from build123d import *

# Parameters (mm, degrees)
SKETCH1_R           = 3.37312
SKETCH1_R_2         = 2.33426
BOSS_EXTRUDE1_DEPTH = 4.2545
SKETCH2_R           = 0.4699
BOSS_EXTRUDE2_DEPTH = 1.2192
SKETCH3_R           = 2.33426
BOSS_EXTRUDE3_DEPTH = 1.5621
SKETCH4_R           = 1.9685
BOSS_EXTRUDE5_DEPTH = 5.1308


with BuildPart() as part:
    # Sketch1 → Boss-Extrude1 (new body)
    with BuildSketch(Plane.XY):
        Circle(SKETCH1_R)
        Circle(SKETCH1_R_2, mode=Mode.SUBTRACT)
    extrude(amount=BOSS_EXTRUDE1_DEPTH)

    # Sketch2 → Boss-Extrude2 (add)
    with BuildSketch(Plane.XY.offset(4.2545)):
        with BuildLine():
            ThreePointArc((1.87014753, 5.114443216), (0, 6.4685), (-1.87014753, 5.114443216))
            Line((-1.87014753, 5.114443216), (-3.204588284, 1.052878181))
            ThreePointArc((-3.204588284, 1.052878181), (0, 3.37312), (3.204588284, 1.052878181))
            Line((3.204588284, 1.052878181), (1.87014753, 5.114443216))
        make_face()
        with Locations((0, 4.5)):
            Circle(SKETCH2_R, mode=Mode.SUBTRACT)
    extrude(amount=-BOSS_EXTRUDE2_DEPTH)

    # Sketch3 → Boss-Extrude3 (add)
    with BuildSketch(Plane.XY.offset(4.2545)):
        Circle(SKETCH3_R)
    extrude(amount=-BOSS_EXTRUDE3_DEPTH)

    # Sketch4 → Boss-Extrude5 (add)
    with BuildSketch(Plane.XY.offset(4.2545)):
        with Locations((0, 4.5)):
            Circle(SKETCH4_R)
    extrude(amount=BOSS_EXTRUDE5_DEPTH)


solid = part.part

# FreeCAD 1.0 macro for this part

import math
import FreeCAD as App
import Part
import Sketcher

V = App.Vector
Q = App.Units.Quantity

doc = App.newDocument("Part")
body = doc.addObject("PartDesign::Body", "Body")

sketch1 = body.newObject("Sketcher::SketchObject", "Sketch")
sketch1.AttachmentSupport = (doc.getObject("XY_Plane"), [""])
sketch1.MapMode = "FlatFace"
sketch1.addGeometry(Part.Circle(V(0, 0, 0), V(0, 0, 1), 3.4), False)
sketch1.addGeometry(Part.Circle(V(0, 0, 0), V(0, 0, 1), 2.3), False)
sketch1.addConstraint(Sketcher.Constraint("Coincident", 0, 3, -1, 1))
sketch1.addConstraint(Sketcher.Constraint("Coincident", 1, 3, -1, 1))
sketch1.addConstraint(Sketcher.Constraint("Diameter", 0, Q("0.2656 in")))
sketch1.addConstraint(Sketcher.Constraint("Diameter", 1, Q("0.1838 in")))
pad1 = body.newObject("PartDesign::Pad", "Pad")
pad1.Profile = sketch1
pad1.Length = Q("0.1675 in")

sketch2 = body.newObject("Sketcher::SketchObject", "Sketch001")
sketch2.AttachmentSupport = (doc.getObject("XY_Plane"), [""])
sketch2.MapMode = "FlatFace"
sketch2.AttachmentOffset = App.Placement(V(0, 0, 0.1675 * 25.4), App.Rotation())
sketch2.addGeometry(Part.ArcOfCircle(Part.Circle(V(0, 4.5, 0), V(0, 0, 1), 1.97), math.radians(18), math.radians(162)), False)
sketch2.addGeometry(Part.LineSegment(V(-1.87, 5.11, 0), V(-3.2, 1.05, 0)), False)
sketch2.addGeometry(Part.ArcOfCircle(Part.Circle(V(0, 0, 0), V(0, 0, 1), 3.37), math.radians(18), math.radians(162)), False)
sketch2.addGeometry(Part.LineSegment(V(3.2, 1.05, 0), V(1.87, 5.11, 0)), False)
sketch2.addGeometry(Part.Circle(V(0, 4.5, 0), V(0, 0, 1), 0.47), False)
sketch2.addConstraint(Sketcher.Constraint("Tangent", 0, 2, 1, 1))
sketch2.addConstraint(Sketcher.Constraint("Tangent", 1, 2, 2, 2))
sketch2.addConstraint(Sketcher.Constraint("Tangent", 2, 1, 3, 1))
sketch2.addConstraint(Sketcher.Constraint("Tangent", 3, 2, 0, 1))
sketch2.addConstraint(Sketcher.Constraint("Coincident", 2, 3, -1, 1))
sketch2.addConstraint(Sketcher.Constraint("Coincident", 4, 3, 0, 3))
sketch2.addConstraint(Sketcher.Constraint("PointOnObject", 0, 3, -2))
sketch2.addConstraint(Sketcher.Constraint("Diameter", 4, Q("0.037 in")))
sketch2.addConstraint(Sketcher.Constraint("Radius", 0, Q("0.0775 in")))
sketch2.addConstraint(Sketcher.Constraint("Radius", 2, Q("0.1328 in")))
sketch2.addConstraint(Sketcher.Constraint("DistanceY", -1, 1, 0, 3, 4.5))
pad2 = body.newObject("PartDesign::Pad", "Pad001")
pad2.Profile = sketch2
pad2.Length = Q("0.048 in")
pad2.Reversed = True

sketch3 = body.newObject("Sketcher::SketchObject", "Sketch002")
sketch3.AttachmentSupport = (doc.getObject("XY_Plane"), [""])
sketch3.MapMode = "FlatFace"
sketch3.AttachmentOffset = App.Placement(V(0, 0, 0.1675 * 25.4), App.Rotation())
sketch3.addGeometry(Part.Circle(V(0, 0, 0), V(0, 0, 1), 2.3), False)
sketch3.addConstraint(Sketcher.Constraint("Coincident", 0, 3, -1, 1))
sketch3.addConstraint(Sketcher.Constraint("Diameter", 0, Q("0.1838 in")))
pad3 = body.newObject("PartDesign::Pad", "Pad002")
pad3.Profile = sketch3
pad3.Length = Q("0.0615 in")
pad3.Reversed = True

sketch4 = body.newObject("Sketcher::SketchObject", "Sketch003")
sketch4.AttachmentSupport = (doc.getObject("XY_Plane"), [""])
sketch4.MapMode = "FlatFace"
sketch4.AttachmentOffset = App.Placement(V(0, 0, 0.1675 * 25.4), App.Rotation())
sketch4.addGeometry(Part.Circle(V(0, 4.5, 0), V(0, 0, 1), 2), False)
sketch4.addConstraint(Sketcher.Constraint("PointOnObject", 0, 3, -2))
sketch4.addConstraint(Sketcher.Constraint("Diameter", 0, Q("0.155 in")))
sketch4.addConstraint(Sketcher.Constraint("DistanceY", -1, 1, 0, 3, 4.5))
pad4 = body.newObject("PartDesign::Pad", "Pad003")
pad4.Profile = sketch4
pad4.Length = Q("0.202 in")

doc.recompute()
